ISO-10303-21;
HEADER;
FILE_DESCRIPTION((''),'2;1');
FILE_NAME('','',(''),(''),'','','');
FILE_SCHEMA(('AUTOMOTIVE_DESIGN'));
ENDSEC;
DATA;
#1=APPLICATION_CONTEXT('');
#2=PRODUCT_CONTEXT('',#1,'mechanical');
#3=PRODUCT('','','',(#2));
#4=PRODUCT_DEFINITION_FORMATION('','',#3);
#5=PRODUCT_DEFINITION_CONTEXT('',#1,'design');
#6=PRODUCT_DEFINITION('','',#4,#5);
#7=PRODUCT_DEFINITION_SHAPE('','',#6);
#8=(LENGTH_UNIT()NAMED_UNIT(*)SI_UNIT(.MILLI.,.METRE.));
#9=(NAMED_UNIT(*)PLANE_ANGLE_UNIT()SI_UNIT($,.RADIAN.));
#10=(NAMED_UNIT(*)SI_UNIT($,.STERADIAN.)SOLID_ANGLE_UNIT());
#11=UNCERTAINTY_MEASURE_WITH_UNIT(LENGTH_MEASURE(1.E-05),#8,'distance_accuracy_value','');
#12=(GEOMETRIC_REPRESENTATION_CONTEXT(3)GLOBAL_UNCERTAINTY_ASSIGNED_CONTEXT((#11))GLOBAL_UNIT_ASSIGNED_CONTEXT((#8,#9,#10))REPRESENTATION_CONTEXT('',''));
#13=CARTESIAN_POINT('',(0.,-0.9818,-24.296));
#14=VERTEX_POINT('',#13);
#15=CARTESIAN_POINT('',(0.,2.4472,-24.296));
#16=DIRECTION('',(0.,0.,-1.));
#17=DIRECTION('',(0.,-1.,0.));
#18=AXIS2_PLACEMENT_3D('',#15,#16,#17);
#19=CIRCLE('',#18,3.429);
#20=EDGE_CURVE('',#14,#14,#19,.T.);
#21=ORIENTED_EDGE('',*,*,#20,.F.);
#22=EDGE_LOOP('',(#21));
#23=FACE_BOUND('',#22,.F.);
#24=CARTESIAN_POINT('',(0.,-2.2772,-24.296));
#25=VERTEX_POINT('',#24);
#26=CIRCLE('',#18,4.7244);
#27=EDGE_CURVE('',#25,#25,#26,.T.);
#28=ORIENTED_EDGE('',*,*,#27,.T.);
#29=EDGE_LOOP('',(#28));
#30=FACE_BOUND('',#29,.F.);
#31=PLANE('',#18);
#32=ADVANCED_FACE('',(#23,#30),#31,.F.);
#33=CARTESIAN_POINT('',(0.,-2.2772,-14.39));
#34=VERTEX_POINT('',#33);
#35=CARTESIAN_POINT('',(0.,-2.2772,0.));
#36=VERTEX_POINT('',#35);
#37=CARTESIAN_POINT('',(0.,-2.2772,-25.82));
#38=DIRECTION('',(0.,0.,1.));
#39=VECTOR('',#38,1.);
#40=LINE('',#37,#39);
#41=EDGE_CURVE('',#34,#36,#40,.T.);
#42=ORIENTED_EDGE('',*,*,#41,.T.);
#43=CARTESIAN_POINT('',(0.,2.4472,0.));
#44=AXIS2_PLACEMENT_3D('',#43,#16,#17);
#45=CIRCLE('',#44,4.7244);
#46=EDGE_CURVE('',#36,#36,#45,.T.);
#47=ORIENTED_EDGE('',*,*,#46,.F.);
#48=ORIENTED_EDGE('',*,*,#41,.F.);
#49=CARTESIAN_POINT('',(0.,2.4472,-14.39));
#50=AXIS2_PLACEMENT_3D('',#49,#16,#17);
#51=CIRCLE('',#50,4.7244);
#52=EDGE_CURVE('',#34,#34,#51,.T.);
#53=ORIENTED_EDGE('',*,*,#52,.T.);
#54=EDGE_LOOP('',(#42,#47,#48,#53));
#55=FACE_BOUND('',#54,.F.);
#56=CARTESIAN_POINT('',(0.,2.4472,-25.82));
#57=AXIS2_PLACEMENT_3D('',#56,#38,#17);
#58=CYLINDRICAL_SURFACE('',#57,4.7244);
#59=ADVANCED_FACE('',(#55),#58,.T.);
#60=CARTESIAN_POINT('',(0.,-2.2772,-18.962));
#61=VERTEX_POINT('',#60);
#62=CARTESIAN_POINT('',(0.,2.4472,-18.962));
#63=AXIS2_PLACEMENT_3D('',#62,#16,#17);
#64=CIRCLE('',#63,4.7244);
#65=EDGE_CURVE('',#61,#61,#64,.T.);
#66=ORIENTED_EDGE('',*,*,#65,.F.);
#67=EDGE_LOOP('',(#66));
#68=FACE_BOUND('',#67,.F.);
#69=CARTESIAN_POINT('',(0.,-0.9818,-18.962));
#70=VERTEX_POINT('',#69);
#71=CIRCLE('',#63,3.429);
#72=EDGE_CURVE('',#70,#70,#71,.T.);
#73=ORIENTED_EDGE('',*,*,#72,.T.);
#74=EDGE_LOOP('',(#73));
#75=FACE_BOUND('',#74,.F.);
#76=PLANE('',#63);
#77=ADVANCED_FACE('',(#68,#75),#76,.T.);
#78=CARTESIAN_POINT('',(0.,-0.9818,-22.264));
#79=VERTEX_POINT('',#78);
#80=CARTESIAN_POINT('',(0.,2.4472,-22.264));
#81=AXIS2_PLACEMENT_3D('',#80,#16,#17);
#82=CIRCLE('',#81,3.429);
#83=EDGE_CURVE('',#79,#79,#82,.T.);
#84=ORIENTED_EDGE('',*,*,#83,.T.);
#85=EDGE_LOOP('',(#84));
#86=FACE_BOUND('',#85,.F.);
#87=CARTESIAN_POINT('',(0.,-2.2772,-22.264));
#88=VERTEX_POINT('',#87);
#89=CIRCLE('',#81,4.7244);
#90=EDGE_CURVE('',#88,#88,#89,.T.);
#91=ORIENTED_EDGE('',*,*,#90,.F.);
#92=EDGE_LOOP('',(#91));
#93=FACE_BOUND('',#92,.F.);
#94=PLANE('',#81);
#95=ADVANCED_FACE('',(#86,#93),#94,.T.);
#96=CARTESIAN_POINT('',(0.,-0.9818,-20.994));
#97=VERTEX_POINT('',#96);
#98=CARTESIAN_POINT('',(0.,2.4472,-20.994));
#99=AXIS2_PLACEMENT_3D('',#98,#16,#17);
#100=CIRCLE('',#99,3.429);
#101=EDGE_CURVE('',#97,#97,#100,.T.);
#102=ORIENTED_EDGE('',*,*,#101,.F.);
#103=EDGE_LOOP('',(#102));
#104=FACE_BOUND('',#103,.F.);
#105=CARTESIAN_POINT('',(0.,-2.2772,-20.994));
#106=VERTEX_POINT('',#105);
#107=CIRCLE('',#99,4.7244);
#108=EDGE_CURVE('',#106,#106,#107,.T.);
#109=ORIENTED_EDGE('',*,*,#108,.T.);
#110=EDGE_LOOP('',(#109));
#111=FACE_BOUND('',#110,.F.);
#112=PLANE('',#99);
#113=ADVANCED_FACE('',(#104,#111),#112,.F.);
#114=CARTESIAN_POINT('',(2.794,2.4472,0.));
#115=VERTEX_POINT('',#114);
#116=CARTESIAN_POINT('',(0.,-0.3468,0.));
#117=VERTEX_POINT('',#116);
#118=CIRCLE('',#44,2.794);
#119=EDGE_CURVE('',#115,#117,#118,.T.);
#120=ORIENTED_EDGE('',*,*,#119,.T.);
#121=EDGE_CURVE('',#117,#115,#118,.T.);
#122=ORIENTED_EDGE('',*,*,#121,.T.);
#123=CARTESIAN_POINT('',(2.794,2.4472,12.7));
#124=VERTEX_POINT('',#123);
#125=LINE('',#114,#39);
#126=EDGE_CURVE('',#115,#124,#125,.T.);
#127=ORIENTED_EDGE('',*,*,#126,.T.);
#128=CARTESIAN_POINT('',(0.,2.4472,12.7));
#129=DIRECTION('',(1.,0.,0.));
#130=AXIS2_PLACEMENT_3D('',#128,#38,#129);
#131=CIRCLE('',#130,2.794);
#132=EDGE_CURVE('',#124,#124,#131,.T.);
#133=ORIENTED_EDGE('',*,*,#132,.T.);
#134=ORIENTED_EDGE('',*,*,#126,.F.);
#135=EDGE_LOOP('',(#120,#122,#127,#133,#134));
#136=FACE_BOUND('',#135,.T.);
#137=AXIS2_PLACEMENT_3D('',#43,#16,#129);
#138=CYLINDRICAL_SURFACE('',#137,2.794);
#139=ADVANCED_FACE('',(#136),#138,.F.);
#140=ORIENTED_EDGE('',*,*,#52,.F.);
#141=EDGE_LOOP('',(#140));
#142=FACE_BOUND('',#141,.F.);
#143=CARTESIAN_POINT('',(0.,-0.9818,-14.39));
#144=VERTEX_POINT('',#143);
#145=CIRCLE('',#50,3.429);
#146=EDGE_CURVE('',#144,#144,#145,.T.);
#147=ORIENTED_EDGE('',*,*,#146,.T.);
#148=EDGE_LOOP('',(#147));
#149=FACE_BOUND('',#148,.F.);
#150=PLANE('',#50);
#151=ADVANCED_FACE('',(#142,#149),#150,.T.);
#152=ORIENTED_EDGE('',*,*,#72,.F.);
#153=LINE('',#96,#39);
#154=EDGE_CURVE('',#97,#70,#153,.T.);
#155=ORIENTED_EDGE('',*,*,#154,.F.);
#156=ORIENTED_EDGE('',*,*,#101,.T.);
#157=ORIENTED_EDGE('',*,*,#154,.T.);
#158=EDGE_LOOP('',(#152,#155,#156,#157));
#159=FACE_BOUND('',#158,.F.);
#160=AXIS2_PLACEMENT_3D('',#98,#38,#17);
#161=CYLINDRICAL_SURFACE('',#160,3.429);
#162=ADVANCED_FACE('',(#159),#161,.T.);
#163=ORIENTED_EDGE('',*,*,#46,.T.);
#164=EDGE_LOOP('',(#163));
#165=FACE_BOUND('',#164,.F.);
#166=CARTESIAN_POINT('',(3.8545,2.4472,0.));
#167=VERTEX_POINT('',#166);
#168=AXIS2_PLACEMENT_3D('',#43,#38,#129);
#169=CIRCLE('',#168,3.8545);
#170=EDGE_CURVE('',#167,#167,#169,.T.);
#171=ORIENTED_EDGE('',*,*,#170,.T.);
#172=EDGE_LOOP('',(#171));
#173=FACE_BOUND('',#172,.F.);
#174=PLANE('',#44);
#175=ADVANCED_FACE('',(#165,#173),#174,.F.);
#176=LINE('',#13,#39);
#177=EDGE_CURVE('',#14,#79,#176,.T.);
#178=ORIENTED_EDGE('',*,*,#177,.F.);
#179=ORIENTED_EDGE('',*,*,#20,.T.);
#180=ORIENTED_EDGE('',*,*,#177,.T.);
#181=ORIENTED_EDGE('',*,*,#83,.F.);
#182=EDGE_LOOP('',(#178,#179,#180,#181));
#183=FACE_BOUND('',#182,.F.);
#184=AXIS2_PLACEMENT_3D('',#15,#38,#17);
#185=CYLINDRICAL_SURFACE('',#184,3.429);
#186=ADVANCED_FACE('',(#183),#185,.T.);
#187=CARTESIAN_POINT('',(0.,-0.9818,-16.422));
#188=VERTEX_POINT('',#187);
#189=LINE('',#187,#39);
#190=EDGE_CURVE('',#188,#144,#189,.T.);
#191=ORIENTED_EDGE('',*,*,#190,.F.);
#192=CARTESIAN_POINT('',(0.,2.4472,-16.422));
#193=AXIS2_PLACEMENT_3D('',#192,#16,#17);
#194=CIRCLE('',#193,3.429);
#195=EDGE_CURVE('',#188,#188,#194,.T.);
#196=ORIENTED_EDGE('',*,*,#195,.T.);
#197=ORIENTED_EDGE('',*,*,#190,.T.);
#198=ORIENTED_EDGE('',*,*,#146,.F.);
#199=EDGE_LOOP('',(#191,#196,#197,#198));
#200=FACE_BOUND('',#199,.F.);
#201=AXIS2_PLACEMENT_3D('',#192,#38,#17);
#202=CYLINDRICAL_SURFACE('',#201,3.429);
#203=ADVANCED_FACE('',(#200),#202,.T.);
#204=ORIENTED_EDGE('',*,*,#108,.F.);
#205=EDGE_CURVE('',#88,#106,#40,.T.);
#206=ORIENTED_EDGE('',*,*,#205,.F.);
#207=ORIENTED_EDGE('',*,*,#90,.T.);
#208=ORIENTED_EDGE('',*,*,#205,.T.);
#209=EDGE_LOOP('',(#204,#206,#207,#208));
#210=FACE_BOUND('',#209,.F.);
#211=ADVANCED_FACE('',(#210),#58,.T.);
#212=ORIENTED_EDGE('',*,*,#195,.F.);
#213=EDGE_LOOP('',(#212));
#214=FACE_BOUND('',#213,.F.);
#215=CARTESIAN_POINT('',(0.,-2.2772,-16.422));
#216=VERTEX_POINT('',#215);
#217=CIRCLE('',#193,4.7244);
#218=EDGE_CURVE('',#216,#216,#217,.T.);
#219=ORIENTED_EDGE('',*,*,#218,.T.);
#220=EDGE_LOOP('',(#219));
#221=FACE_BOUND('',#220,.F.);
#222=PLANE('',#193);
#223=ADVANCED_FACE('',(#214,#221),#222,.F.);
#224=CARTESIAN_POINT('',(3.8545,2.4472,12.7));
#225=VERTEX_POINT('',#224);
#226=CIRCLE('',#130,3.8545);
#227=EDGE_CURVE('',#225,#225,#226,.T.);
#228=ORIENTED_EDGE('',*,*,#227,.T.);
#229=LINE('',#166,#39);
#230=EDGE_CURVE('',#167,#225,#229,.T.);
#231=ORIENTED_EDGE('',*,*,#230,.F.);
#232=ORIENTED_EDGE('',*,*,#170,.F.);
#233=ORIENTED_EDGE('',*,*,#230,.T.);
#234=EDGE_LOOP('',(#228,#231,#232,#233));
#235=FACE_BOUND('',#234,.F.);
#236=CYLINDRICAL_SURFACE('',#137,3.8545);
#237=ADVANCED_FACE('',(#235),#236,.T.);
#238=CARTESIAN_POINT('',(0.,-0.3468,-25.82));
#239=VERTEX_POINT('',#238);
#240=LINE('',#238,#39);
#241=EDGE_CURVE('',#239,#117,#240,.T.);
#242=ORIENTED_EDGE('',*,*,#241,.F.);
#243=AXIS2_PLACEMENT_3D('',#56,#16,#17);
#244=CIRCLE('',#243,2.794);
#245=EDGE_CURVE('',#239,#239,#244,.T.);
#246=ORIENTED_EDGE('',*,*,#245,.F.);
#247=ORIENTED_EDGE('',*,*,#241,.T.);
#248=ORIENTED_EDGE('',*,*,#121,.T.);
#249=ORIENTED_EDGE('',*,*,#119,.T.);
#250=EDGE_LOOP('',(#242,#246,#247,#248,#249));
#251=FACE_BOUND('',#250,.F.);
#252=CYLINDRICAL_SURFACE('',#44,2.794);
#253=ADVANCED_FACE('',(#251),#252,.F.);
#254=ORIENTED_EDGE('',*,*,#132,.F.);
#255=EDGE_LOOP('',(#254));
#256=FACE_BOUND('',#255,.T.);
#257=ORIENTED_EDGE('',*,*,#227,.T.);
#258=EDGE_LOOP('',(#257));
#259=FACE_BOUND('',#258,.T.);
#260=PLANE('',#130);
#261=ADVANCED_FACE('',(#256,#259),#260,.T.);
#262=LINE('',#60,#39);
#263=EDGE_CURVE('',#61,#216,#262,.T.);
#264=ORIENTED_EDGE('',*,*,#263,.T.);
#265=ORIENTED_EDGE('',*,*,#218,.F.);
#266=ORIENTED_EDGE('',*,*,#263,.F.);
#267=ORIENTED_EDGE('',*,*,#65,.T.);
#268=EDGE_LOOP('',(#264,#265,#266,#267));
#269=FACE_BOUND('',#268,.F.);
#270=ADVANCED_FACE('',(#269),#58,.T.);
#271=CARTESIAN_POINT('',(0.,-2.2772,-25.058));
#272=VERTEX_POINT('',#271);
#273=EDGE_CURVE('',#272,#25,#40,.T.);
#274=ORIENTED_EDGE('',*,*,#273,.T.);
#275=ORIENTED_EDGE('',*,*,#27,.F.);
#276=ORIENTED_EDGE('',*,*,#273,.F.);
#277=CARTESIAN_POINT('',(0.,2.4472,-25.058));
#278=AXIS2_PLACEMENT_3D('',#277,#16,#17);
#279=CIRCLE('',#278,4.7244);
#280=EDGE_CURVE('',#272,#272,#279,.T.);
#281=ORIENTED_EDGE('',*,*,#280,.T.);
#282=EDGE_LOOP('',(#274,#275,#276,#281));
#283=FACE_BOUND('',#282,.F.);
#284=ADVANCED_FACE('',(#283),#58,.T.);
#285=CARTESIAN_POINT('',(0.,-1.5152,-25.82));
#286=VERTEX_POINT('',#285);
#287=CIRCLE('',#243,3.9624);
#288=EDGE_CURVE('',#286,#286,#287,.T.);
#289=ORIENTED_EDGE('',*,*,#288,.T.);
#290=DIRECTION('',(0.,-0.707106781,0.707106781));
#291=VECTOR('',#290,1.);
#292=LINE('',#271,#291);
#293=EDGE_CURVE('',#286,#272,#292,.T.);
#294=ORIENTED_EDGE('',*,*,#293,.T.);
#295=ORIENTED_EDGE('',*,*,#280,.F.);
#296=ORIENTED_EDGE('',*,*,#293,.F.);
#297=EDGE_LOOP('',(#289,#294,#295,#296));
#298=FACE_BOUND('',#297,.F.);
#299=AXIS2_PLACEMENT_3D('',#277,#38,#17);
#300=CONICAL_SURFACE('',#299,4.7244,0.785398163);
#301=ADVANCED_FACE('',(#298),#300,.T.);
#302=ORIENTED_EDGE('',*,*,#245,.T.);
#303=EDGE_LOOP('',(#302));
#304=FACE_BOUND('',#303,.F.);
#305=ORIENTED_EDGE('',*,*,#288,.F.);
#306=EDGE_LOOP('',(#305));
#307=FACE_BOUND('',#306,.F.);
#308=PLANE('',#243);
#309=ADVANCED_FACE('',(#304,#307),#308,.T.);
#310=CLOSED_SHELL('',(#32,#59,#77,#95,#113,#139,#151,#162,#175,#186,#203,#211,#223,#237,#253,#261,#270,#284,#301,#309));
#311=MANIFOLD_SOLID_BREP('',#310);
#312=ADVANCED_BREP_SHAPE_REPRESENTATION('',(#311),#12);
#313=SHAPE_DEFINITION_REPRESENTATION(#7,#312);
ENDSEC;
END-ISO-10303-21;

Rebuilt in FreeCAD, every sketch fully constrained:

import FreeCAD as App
import Part
import Sketcher

V = App.Vector
Q = App.Units.Quantity


def edges_at(feature, points):
    """Names of the edges that pass closest to the given points."""
    edges = feature.Shape.Edges
    near = lambda p: min(range(len(edges)), key=lambda i: edges[i].distToShape(Part.Vertex(*p))[0])
    return sorted({f"Edge{near(p) + 1}" for p in points})


def add_polygon(sketch, points):
    """Adds a closed chain of lines whose ends are joined by coincident constraints."""
    first, n = sketch.GeometryCount, len(points)
    for a, b in zip(points, points[1:] + points[:1]):
        sketch.addGeometry(Part.LineSegment(App.Vector(*a, 0), App.Vector(*b, 0)), False)
    for i in range(n):
        sketch.addConstraint(Sketcher.Constraint("Coincident", first + i, 2, first + (i + 1) % n, 1))

doc = App.newDocument("Part")
params = doc.addObject("Spreadsheet::Sheet", "Params")
for row, (alias, value) in enumerate([
    ("sketch1_height", "0.1 in"),
    ("sketch1_height2", "0.08 in"),
    ("sketch1_height3", "0.05 in"),
    ("sketch1_height4", "0.06 in"),
    ("sketch1_width", "0.076 in"),
    ("revolution_angle", "360 deg"),
    ("chamfer_size", "0.03 in"),
    ("sketch2_diameter", "0.22 in"),
    ("pad1_length", "0.5 in"),
], start=1):
    params.set(f"A{row}", alias)
    params.set(f"B{row}", "=" + value)
    params.setAlias(f"B{row}", alias)

body = doc.addObject("PartDesign::Body", "Body")

# Sketch on YZ plane
sketch1 = doc.addObject("Sketcher::SketchObject", "Sketch")
body.addObject(sketch1)
sketch1.AttachmentSupport = (doc.YZ_Plane, [""])
sketch1.MapMode = "FlatFace"
add_polygon(sketch1, [(-0.3, 0), (-2.3, 0), (-2.3, -14.4), (-1, -14.4), (-1, -16.4), (-2.3, -16.4), (-2.3, -19), (-1, -19), (-1, -21), (-2.3, -21), (-2.3, -22.3), (-1, -22.3), (-1, -24.3), (-2.3, -24.3), (-2.3, -25.8), (-0.3, -25.8)])  # lines 0-15
sketch1.addGeometry(Part.LineSegment(V(2.4, 0, 0), V(2.4, -25.8, 0)), True)  # axis
sketch1.addConstraint([
    Sketcher.Constraint("Horizontal", 0),
    Sketcher.Constraint("Vertical", 1),
    Sketcher.Constraint("Horizontal", 2),
    Sketcher.Constraint("Vertical", 3),
    Sketcher.Constraint("Horizontal", 4),
    Sketcher.Constraint("Vertical", 5),
    Sketcher.Constraint("Horizontal", 6),
    Sketcher.Constraint("Vertical", 7),
    Sketcher.Constraint("Horizontal", 8),
    Sketcher.Constraint("Vertical", 9),
    Sketcher.Constraint("Horizontal", 10),
    Sketcher.Constraint("Vertical", 11),
    Sketcher.Constraint("Horizontal", 12),
    Sketcher.Constraint("Vertical", 13),
    Sketcher.Constraint("Horizontal", 14),
    Sketcher.Constraint("Vertical", 15),
    Sketcher.Constraint("Vertical", 16),
    Sketcher.Constraint("PointOnObject", 0, 2, -1),
    Sketcher.Constraint("PointOnObject", 16, 1, -1),
    Sketcher.Constraint("Horizontal", 14, 2, 16, 2),
    Sketcher.Constraint("Vertical", 1, 2, 4, 2),
    Sketcher.Constraint("Vertical", 3, 2, 6, 2),
    Sketcher.Constraint("Vertical", 5, 2, 8, 2),
    Sketcher.Constraint("Vertical", 7, 2, 10, 2),
    Sketcher.Constraint("Vertical", 9, 2, 12, 2),
    Sketcher.Constraint("Equal", 3, 7),
    Sketcher.Constraint("Equal", 7, 11),
    Sketcher.Constraint("DistanceY", 5, 2, 5, 1, Q("0.1 in")),
    Sketcher.Constraint("DistanceY", 3, 2, 3, 1, Q("0.08 in")),
    Sketcher.Constraint("DistanceY", 9, 2, 9, 1, Q("0.05 in")),
    Sketcher.Constraint("DistanceY", 13, 2, 13, 1, Q("0.06 in")),
    Sketcher.Constraint("DistanceX", 11, 2, 14, 2, Q("0.025 in")),
    Sketcher.Constraint("DistanceX", 0, 2, 0, 1, Q("0.076 in")),
    Sketcher.Constraint("DistanceX", 15, 2, 16, 1, Q("0.11 in")),
    Sketcher.Constraint("DistanceY", 1, 2, 1, 1, Q("14.39 mm")),
    Sketcher.Constraint("DistanceX", 0, 2, -1, 1, Q("2.2772 mm")),
])
sketch1.setExpression("Constraints[43]", "Params.sketch1_height")
sketch1.setExpression("Constraints[44]", "Params.sketch1_height2")
sketch1.setExpression("Constraints[45]", "Params.sketch1_height3")
sketch1.setExpression("Constraints[46]", "Params.sketch1_height4")
sketch1.setExpression("Constraints[48]", "Params.sketch1_width")
revolution = doc.addObject("PartDesign::Revolution", "Revolution")
body.addObject(revolution)
revolution.Profile = sketch1
revolution.ReferenceAxis = (sketch1, ["Axis0"])
revolution.setExpression("Angle", "Params.revolution_angle")
doc.recompute()

chamfer = doc.addObject("PartDesign::Chamfer", "Chamfer")
body.addObject(chamfer)
chamfer.Base = (revolution, edges_at(revolution, [(0, 7.172, -25.82)]))
chamfer.setExpression("Size", "Params.chamfer_size")

# Sketch on XY plane
sketch2 = doc.addObject("Sketcher::SketchObject", "Sketch001")
body.addObject(sketch2)
sketch2.AttachmentSupport = (doc.XY_Plane, [""])
sketch2.MapMode = "FlatFace"
sketch2.addGeometry([
    Part.Circle(V(0, 2.4, 0), V(0, 0, 1), 3.9),
    Part.Circle(V(0, 2.4, 0), V(0, 0, 1), 2.8),
], False)
sketch2.addConstraint([
    Sketcher.Constraint("Coincident", 1, 3, 0, 3),
    Sketcher.Constraint("PointOnObject", 0, 3, -2),
    Sketcher.Constraint("Diameter", 1, Q("0.22 in")),
    Sketcher.Constraint("Diameter", 0, Q("0.3035 in")),
    Sketcher.Constraint("DistanceY", -1, 1, 0, 3, Q("2.4472 mm")),
])
sketch2.setExpression("Constraints[2]", "Params.sketch2_diameter")
pad1 = doc.addObject("PartDesign::Pad", "Pad")
body.addObject(pad1)
pad1.Profile = sketch2
pad1.setExpression("Length", "Params.pad1_length")

doc.recompute()
